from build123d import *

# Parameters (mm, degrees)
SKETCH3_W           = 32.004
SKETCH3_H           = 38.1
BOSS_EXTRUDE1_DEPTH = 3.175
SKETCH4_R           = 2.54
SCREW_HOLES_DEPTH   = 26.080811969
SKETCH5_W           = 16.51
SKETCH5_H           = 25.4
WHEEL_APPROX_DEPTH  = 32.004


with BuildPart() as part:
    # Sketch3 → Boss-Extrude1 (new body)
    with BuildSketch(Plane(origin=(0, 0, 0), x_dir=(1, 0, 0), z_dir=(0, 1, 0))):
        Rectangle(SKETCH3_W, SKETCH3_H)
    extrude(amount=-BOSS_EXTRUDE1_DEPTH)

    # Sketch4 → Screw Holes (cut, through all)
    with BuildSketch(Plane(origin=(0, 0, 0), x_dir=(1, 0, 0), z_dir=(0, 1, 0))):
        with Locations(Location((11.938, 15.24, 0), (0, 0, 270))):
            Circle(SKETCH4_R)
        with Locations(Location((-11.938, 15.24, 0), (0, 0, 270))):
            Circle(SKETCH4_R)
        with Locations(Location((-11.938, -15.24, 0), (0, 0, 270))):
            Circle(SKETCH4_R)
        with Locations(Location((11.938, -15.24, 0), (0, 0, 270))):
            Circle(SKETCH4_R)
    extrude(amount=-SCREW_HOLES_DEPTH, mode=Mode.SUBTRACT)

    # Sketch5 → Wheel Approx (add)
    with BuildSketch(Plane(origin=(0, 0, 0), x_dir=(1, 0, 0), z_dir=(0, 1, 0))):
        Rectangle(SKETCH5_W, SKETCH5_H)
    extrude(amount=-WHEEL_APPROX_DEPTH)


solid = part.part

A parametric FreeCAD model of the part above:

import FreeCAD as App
import Part
import Sketcher
from FreeCAD import Vector
Q = App.Units.Quantity


def add_polygon(sketch, points):
    """Adds a closed chain of lines whose ends are joined by coincident constraints."""
    first, n = sketch.GeometryCount, len(points)
    for a, b in zip(points, points[1:] + points[:1]):
        sketch.addGeometry(Part.LineSegment(App.Vector(*a, 0), App.Vector(*b, 0)), False)
    for i in range(n):
        sketch.addConstraint(Sketcher.Constraint("Coincident", first + i, 2, first + (i + 1) % n, 1))

doc = App.newDocument("Part")
body = doc.addObject("PartDesign::Body", "Body")

sketch1 = body.newObject("Sketcher::SketchObject", "Sketch")
sketch1.AttachmentSupport = (doc.getObject("XZ_Plane"), [""])
sketch1.MapMode = "FlatFace"
add_polygon(sketch1, [(-16, -19), (-16, 19), (16, 19), (16, -19)])
sketch1.addConstraint(Sketcher.Constraint("Vertical", 0))
sketch1.addConstraint(Sketcher.Constraint("Horizontal", 1))
sketch1.addConstraint(Sketcher.Constraint("Vertical", 2))
sketch1.addConstraint(Sketcher.Constraint("Horizontal", 3))
sketch1.addConstraint(Sketcher.Constraint("Symmetric", 0, 2, 2, 2, -1, 1))
sketch1.addConstraint(Sketcher.Constraint("DistanceY", 0, 1, 0, 2, Q("1.5 in")))
sketch1.addConstraint(Sketcher.Constraint("DistanceX", 1, 1, 1, 2, Q("1.26 in")))
pad1 = body.newObject("PartDesign::Pad", "Pad")
pad1.Profile = sketch1
pad1.Length = Q("0.125 in")

sketch2 = body.newObject("Sketcher::SketchObject", "Sketch001")
sketch2.AttachmentSupport = (doc.getObject("XZ_Plane"), [""])
sketch2.MapMode = "FlatFace"
sketch2.addGeometry(Part.Circle(Vector(11.9, -15.2, 0), Vector(0, 0, 1), 2.5), False)
sketch2.addGeometry(Part.Circle(Vector(-11.9, -15.2, 0), Vector(0, 0, 1), 2.5), False)
sketch2.addGeometry(Part.Circle(Vector(-11.9, 15.2, 0), Vector(0, 0, 1), 2.5), False)
sketch2.addGeometry(Part.Circle(Vector(11.9, 15.2, 0), Vector(0, 0, 1), 2.5), False)
sketch2.addConstraint(Sketcher.Constraint("Equal", 0, 1))
sketch2.addConstraint(Sketcher.Constraint("Equal", 1, 2))
sketch2.addConstraint(Sketcher.Constraint("Equal", 2, 3))
sketch2.addConstraint(Sketcher.Constraint("Symmetric", 0, 3, 2, 3, -1, 1))
sketch2.addConstraint(Sketcher.Constraint("Symmetric", 1, 3, 3, 3, -1, 1))
sketch2.addConstraint(Sketcher.Constraint("Symmetric", 0, 3, 1, 3, -2))
sketch2.addConstraint(Sketcher.Constraint("Diameter", 0, Q("0.2 in")))
sketch2.addConstraint(Sketcher.Constraint("DistanceY", 0, 3, -1, 1, Q("0.6 in")))
sketch2.addConstraint(Sketcher.Constraint("DistanceX", -1, 1, 0, 3, Q("0.47 in")))
pocket1 = body.newObject("PartDesign::Pocket", "Pocket")
pocket1.Profile = sketch2
pocket1.Type = "ThroughAll"
pocket1.Reversed = True

sketch3 = body.newObject("Sketcher::SketchObject", "Sketch002")
sketch3.AttachmentSupport = (doc.getObject("XZ_Plane"), [""])
sketch3.MapMode = "FlatFace"
add_polygon(sketch3, [(-8, -13), (-8, 13), (8, 13), (8, -13)])
sketch3.addConstraint(Sketcher.Constraint("Vertical", 0))
sketch3.addConstraint(Sketcher.Constraint("Horizontal", 1))
sketch3.addConstraint(Sketcher.Constraint("Vertical", 2))
sketch3.addConstraint(Sketcher.Constraint("Horizontal", 3))
sketch3.addConstraint(Sketcher.Constraint("Symmetric", 0, 2, 2, 2, -1, 1))
sketch3.addConstraint(Sketcher.Constraint("DistanceY", 0, 1, 0, 2, Q("1 in")))
sketch3.addConstraint(Sketcher.Constraint("DistanceX", 1, 1, 1, 2, Q("0.65 in")))
pad2 = body.newObject("PartDesign::Pad", "Pad001")
pad2.Profile = sketch3
pad2.Length = Q("1.26 in")

doc.recompute()
